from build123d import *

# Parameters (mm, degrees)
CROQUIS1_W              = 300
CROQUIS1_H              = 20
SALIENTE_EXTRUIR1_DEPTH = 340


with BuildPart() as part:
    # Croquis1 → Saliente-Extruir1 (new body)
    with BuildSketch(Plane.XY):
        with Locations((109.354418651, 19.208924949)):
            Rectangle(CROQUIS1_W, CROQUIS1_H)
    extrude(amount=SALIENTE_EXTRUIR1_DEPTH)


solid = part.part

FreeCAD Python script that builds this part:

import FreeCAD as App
import Part
import Sketcher

doc = App.newDocument("Part")
body = doc.addObject("PartDesign::Body", "Body")

# Sketch on XY plane
sketch1 = body.newObject("Sketcher::SketchObject", "Sketch")
sketch1.AttachmentSupport = (doc.getObject("XY_Plane"), [""])
sketch1.MapMode = "FlatFace"
sketch1.addGeometry([
    Part.LineSegment(App.Vector(-41, 29, 0), App.Vector(-41, 9, 0)),
    Part.LineSegment(App.Vector(-41, 9, 0), App.Vector(259, 9, 0)),
    Part.LineSegment(App.Vector(259, 9, 0), App.Vector(259, 29, 0)),
    Part.LineSegment(App.Vector(259, 29, 0), App.Vector(-41, 29, 0)),
], False)
sketch1.addConstraint([
    Sketcher.Constraint("Coincident", 0, 2, 1, 1),
    Sketcher.Constraint("Coincident", 1, 2, 2, 1),
    Sketcher.Constraint("Coincident", 2, 2, 3, 1),
    Sketcher.Constraint("Coincident", 3, 2, 0, 1),
    Sketcher.Constraint("Vertical", 0),
    Sketcher.Constraint("Horizontal", 1),
    Sketcher.Constraint("Vertical", 2),
    Sketcher.Constraint("Horizontal", 3),
    Sketcher.Constraint("DistanceX", 1, 1, 1, 2, 300.0),
    Sketcher.Constraint("DistanceY", 0, 2, 0, 1, 20.0),
    Sketcher.Constraint("DistanceX", 0, 2, -1, 1, 40.645581),
    Sketcher.Constraint("DistanceY", -1, 1, 0, 2, 9.208925),
])
pad1 = body.newObject("PartDesign::Pad", "Pad")
pad1.Profile = sketch1
pad1.Length = 340

doc.recompute()
